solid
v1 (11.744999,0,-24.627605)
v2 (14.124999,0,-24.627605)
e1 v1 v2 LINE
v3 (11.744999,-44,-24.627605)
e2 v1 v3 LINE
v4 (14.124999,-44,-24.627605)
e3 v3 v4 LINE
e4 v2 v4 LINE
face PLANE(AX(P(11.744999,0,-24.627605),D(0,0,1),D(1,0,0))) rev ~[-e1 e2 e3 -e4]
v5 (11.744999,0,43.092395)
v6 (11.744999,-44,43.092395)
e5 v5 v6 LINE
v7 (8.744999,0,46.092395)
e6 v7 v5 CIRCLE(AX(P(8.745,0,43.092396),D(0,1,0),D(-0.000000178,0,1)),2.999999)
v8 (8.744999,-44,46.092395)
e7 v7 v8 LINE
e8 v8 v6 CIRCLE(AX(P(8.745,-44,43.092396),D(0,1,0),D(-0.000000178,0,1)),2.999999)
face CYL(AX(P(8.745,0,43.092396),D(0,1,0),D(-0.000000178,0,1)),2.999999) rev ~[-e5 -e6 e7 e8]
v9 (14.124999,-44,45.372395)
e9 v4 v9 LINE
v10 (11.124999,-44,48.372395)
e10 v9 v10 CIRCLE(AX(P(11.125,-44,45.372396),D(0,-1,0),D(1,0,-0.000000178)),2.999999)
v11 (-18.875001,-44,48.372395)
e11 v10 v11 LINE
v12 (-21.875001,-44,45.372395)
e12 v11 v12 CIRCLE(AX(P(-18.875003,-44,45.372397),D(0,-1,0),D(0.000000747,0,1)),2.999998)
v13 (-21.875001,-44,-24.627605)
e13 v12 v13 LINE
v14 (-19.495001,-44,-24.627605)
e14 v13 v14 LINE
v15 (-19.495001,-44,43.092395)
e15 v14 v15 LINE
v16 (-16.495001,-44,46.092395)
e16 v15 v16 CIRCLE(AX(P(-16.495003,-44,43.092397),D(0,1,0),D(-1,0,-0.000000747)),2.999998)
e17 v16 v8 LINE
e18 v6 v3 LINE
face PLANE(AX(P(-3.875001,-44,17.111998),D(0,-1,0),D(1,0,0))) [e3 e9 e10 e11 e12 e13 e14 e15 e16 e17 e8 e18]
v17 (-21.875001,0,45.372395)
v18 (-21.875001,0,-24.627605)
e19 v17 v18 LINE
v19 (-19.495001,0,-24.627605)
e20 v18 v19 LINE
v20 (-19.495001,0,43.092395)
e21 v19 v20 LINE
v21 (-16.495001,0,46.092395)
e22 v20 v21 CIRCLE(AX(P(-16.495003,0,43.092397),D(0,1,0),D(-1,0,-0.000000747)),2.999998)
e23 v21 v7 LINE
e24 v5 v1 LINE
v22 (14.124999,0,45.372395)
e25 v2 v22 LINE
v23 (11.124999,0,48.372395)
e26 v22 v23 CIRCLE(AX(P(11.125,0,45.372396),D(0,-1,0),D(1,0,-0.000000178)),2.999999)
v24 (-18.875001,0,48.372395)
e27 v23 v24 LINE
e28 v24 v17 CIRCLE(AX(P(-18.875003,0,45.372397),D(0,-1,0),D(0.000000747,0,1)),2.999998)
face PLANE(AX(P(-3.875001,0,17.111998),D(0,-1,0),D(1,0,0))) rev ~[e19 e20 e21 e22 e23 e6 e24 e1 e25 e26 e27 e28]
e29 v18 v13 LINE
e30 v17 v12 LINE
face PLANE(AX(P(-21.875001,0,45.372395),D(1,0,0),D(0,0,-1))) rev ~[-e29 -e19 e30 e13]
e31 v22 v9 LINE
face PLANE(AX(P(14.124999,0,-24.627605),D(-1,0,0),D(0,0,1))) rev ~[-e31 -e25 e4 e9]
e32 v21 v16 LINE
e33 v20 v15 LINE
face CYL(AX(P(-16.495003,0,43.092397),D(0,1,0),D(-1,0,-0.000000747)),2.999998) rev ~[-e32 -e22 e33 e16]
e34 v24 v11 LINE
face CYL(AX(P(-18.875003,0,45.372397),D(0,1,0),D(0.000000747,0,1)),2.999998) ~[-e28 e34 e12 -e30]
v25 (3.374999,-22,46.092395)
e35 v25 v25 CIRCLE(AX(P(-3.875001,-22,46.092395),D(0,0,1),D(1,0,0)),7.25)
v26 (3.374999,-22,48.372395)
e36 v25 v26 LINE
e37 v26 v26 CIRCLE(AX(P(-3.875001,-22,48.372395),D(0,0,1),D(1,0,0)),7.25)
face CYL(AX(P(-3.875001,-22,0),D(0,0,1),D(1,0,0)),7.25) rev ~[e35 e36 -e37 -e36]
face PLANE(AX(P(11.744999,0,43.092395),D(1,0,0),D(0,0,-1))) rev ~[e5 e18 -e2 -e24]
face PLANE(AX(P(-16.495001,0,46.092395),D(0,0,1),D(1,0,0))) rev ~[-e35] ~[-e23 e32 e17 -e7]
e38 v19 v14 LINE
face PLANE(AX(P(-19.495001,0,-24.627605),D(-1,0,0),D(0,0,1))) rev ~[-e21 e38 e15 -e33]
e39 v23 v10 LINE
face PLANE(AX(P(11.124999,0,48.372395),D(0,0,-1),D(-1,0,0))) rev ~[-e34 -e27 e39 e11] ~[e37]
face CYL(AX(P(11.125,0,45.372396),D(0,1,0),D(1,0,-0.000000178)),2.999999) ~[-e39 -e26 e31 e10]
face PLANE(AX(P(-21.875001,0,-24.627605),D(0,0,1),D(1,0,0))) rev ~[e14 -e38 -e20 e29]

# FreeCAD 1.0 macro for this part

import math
import FreeCAD as App
import Part
import Sketcher

V = App.Vector
Q = App.Units.Quantity

doc = App.newDocument("Part")
body = doc.addObject("PartDesign::Body", "Body")

sketch1 = body.newObject("Sketcher::SketchObject", "Sketch")
sketch1.AttachmentSupport = (doc.getObject("XZ_Plane"), [""])
sketch1.MapMode = "FlatFace"
sketch1.addGeometry(Part.ArcOfCircle(Part.Circle(V(-16.5, 43.1, 0), V(0, 0, 1), 3), math.radians(90), math.radians(180)), False)
sketch1.addGeometry(Part.LineSegment(V(-16.5, 46.1, 0), V(8.7, 46.1, 0)), False)
sketch1.addGeometry(Part.ArcOfCircle(Part.Circle(V(8.7, 43.1, 0), V(0, 0, 1), 3), math.radians(0), math.radians(90)), False)
sketch1.addGeometry(Part.LineSegment(V(11.7, 43.1, 0), V(11.7, -24.6, 0)), False)
sketch1.addGeometry(Part.LineSegment(V(11.7, -24.6, 0), V(14.1, -24.6, 0)), False)
sketch1.addGeometry(Part.LineSegment(V(14.1, -24.6, 0), V(14.1, 45.4, 0)), False)
sketch1.addGeometry(Part.ArcOfCircle(Part.Circle(V(11.1, 45.4, 0), V(0, 0, 1), 3), math.radians(0), math.radians(90)), False)
sketch1.addGeometry(Part.LineSegment(V(11.1, 48.4, 0), V(-18.9, 48.4, 0)), False)
sketch1.addGeometry(Part.ArcOfCircle(Part.Circle(V(-18.9, 45.4, 0), V(0, 0, 1), 3), math.radians(90), math.radians(180)), False)
sketch1.addGeometry(Part.LineSegment(V(-21.9, 45.4, 0), V(-21.9, -24.6, 0)), False)
sketch1.addGeometry(Part.LineSegment(V(-21.9, -24.6, 0), V(-19.5, -24.6, 0)), False)
sketch1.addGeometry(Part.LineSegment(V(-19.5, -24.6, 0), V(-19.5, 43.1, 0)), False)
sketch1.addConstraint(Sketcher.Constraint("Tangent", 0, 1, 1, 1))
sketch1.addConstraint(Sketcher.Constraint("Tangent", 1, 2, 2, 2))
sketch1.addConstraint(Sketcher.Constraint("Tangent", 2, 1, 3, 1))
sketch1.addConstraint(Sketcher.Constraint("Coincident", 3, 2, 4, 1))
sketch1.addConstraint(Sketcher.Constraint("Coincident", 4, 2, 5, 1))
sketch1.addConstraint(Sketcher.Constraint("Tangent", 5, 2, 6, 1))
sketch1.addConstraint(Sketcher.Constraint("Tangent", 6, 2, 7, 1))
sketch1.addConstraint(Sketcher.Constraint("Tangent", 7, 2, 8, 1))
sketch1.addConstraint(Sketcher.Constraint("Tangent", 8, 2, 9, 1))
sketch1.addConstraint(Sketcher.Constraint("Coincident", 9, 2, 10, 1))
sketch1.addConstraint(Sketcher.Constraint("Coincident", 10, 2, 11, 1))
sketch1.addConstraint(Sketcher.Constraint("Tangent", 11, 2, 0, 2))
sketch1.addConstraint(Sketcher.Constraint("Horizontal", 1))
sketch1.addConstraint(Sketcher.Constraint("Vertical", 3))
sketch1.addConstraint(Sketcher.Constraint("Horizontal", 4))
sketch1.addConstraint(Sketcher.Constraint("Vertical", 5))
sketch1.addConstraint(Sketcher.Constraint("Horizontal", 7))
sketch1.addConstraint(Sketcher.Constraint("Vertical", 9))
sketch1.addConstraint(Sketcher.Constraint("Horizontal", 10))
sketch1.addConstraint(Sketcher.Constraint("Vertical", 11))
sketch1.addConstraint(Sketcher.Constraint("Equal", 0, 2))
sketch1.addConstraint(Sketcher.Constraint("Equal", 2, 6))
sketch1.addConstraint(Sketcher.Constraint("Equal", 6, 8))
sketch1.addConstraint(Sketcher.Constraint("Horizontal", 4, 2, 9, 2))
sketch1.addConstraint(Sketcher.Constraint("Equal", 4, 10))
sketch1.addConstraint(Sketcher.Constraint("Radius", 2, Q("2.999999 mm")))
sketch1.addConstraint(Sketcher.Constraint("DistanceX", 7, 2, 7, 1, Q("30 mm")))
sketch1.addConstraint(Sketcher.Constraint("DistanceY", 5, 1, 5, 2, Q("70 mm")))
sketch1.addConstraint(Sketcher.Constraint("DistanceX", 1, 1, 1, 2, Q("25.24 mm")))
sketch1.addConstraint(Sketcher.Constraint("DistanceY", 3, 2, 3, 1, Q("67.72 mm")))
sketch1.addConstraint(Sketcher.Constraint("DistanceX", -1, 1, 2, 3, Q("8.745 mm")))
sketch1.addConstraint(Sketcher.Constraint("DistanceY", -1, 1, 0, 3, Q("43.092397 mm")))
pad1 = body.newObject("PartDesign::Pad", "Pad")
pad1.Profile = sketch1
pad1.Length = 44

sketch2 = body.newObject("Sketcher::SketchObject", "Sketch001")
sketch2.AttachmentSupport = (doc.getObject("XY_Plane"), [""])
sketch2.MapMode = "FlatFace"
sketch2.addGeometry(Part.Circle(V(-4, -22, 0), V(0, 0, 1), 7), False)
sketch2.addConstraint(Sketcher.Constraint("Diameter", 0, Q("14.5 mm")))
sketch2.addConstraint(Sketcher.Constraint("DistanceY", 0, 3, -1, 1, Q("22 mm")))
sketch2.addConstraint(Sketcher.Constraint("DistanceX", 0, 3, -1, 1, Q("3.875001 mm")))
pocket1 = body.newObject("PartDesign::Pocket", "Pocket")
pocket1.Profile = sketch2
pocket1.Length = 163.2
pocket1.Midplane = True

doc.recompute()
